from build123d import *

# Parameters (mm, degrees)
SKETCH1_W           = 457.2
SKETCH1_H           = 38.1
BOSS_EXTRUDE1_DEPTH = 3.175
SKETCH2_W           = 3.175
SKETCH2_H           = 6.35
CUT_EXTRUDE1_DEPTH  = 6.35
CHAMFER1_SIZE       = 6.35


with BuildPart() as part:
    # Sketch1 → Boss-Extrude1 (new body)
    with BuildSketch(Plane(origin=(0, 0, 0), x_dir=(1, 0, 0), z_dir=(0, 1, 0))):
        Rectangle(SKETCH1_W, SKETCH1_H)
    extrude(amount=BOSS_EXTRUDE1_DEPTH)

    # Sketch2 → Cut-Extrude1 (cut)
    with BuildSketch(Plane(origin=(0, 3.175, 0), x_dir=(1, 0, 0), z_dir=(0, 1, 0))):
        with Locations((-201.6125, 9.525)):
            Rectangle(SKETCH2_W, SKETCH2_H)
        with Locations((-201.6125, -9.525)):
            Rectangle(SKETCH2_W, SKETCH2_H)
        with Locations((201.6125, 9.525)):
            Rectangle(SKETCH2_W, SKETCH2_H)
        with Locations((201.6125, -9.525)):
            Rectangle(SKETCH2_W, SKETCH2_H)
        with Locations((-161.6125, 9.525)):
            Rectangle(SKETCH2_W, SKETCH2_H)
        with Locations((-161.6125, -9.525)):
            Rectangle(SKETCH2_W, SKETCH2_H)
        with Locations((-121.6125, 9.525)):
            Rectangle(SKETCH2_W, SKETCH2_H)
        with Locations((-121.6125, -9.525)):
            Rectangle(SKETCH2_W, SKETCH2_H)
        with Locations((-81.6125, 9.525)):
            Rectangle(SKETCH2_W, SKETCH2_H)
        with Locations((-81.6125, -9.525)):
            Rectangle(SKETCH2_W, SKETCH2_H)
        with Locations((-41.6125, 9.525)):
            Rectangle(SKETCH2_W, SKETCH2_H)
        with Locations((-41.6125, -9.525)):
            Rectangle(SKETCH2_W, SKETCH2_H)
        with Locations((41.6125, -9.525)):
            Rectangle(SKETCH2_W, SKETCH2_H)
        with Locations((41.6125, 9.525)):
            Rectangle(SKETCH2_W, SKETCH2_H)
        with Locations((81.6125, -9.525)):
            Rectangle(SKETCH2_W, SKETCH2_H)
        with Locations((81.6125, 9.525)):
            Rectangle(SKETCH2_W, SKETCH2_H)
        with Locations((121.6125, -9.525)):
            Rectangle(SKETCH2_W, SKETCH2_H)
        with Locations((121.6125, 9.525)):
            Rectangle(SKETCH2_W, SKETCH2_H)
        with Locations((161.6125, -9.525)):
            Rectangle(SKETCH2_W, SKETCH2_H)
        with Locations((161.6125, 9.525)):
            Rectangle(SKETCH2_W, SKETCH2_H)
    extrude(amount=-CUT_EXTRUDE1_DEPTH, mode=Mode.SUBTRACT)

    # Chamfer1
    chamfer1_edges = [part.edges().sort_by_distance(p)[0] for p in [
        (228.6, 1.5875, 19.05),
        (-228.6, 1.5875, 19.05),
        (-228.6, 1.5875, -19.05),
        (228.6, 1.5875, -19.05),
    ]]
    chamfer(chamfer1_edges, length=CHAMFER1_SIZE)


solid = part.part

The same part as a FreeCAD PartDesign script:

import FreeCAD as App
import Part
import Sketcher
Q = App.Units.Quantity


def edges_at(feature, points):
    """Names of the edges that pass closest to the given points."""
    edges = feature.Shape.Edges
    near = lambda p: min(range(len(edges)), key=lambda i: edges[i].distToShape(Part.Vertex(*p))[0])
    return sorted({f"Edge{near(p) + 1}" for p in points})

doc = App.newDocument("Part")
body = doc.addObject("PartDesign::Body", "Body")

sketch1 = doc.addObject("Sketcher::SketchObject", "Sketch")
body.addObject(sketch1)
sketch1.AttachmentSupport = (doc.XZ_Plane, [""])
sketch1.MapMode = "FlatFace"
sketch1.addGeometry(Part.LineSegment(App.Vector(-228.6, -19.05, 0), App.Vector(-228.6, 19.05, 0)), False)
sketch1.addGeometry(Part.LineSegment(App.Vector(-228.6, 19.05, 0), App.Vector(228.6, 19.05, 0)), False)
sketch1.addGeometry(Part.LineSegment(App.Vector(228.6, 19.05, 0), App.Vector(228.6, -19.05, 0)), False)
sketch1.addGeometry(Part.LineSegment(App.Vector(228.6, -19.05, 0), App.Vector(-228.6, -19.05, 0)), False)
sketch1.addConstraint(Sketcher.Constraint("Coincident", 0, 2, 1, 1))
sketch1.addConstraint(Sketcher.Constraint("Coincident", 1, 2, 2, 1))
sketch1.addConstraint(Sketcher.Constraint("Coincident", 2, 2, 3, 1))
sketch1.addConstraint(Sketcher.Constraint("Coincident", 3, 2, 0, 1))
sketch1.addConstraint(Sketcher.Constraint("Vertical", 0))
sketch1.addConstraint(Sketcher.Constraint("Horizontal", 1))
sketch1.addConstraint(Sketcher.Constraint("Vertical", 2))
sketch1.addConstraint(Sketcher.Constraint("Horizontal", 3))
sketch1.addConstraint(Sketcher.Constraint("Symmetric", 0, 2, 2, 2, -1, 1))
sketch1.addConstraint(Sketcher.Constraint("DistanceX", 1, 1, 1, 2, Q("18 in")))
sketch1.addConstraint(Sketcher.Constraint("DistanceY", 0, 1, 0, 2, Q("1.5 in")))
pad1 = doc.addObject("PartDesign::Pad", "Pad")
body.addObject(pad1)
pad1.Profile = sketch1
pad1.Length = Q("0.125 in")
pad1.Reversed = True

sketch2 = doc.addObject("Sketcher::SketchObject", "Sketch001")
body.addObject(sketch2)
sketch2.AttachmentSupport = (doc.XZ_Plane, [""])
sketch2.MapMode = "FlatFace"
sketch2.AttachmentOffset = App.Placement(App.Vector(0, 0, -0.125 * 25.4), App.Rotation())
sketch2.addGeometry(Part.LineSegment(App.Vector(-203.2, -12.7, 0), App.Vector(-203.2, -6.35, 0)), False)
sketch2.addGeometry(Part.LineSegment(App.Vector(-203.2, -6.35, 0), App.Vector(-200.025, -6.35, 0)), False)
sketch2.addGeometry(Part.LineSegment(App.Vector(-200.025, -6.35, 0), App.Vector(-200.025, -12.7, 0)), False)
sketch2.addGeometry(Part.LineSegment(App.Vector(-200.025, -12.7, 0), App.Vector(-203.2, -12.7, 0)), False)
sketch2.addGeometry(Part.LineSegment(App.Vector(-203.2, 6.35, 0), App.Vector(-203.2, 12.7, 0)), False)
sketch2.addGeometry(Part.LineSegment(App.Vector(-203.2, 12.7, 0), App.Vector(-200.025, 12.7, 0)), False)
sketch2.addGeometry(Part.LineSegment(App.Vector(-200.025, 12.7, 0), App.Vector(-200.025, 6.35, 0)), False)
sketch2.addGeometry(Part.LineSegment(App.Vector(-200.025, 6.35, 0), App.Vector(-203.2, 6.35, 0)), False)
sketch2.addGeometry(Part.LineSegment(App.Vector(200.025, -12.7, 0), App.Vector(200.025, -6.35, 0)), False)
sketch2.addGeometry(Part.LineSegment(App.Vector(200.025, -6.35, 0), App.Vector(203.2, -6.35, 0)), False)
sketch2.addGeometry(Part.LineSegment(App.Vector(203.2, -6.35, 0), App.Vector(203.2, -12.7, 0)), False)
sketch2.addGeometry(Part.LineSegment(App.Vector(203.2, -12.7, 0), App.Vector(200.025, -12.7, 0)), False)
sketch2.addGeometry(Part.LineSegment(App.Vector(200.025, 6.35, 0), App.Vector(200.025, 12.7, 0)), False)
sketch2.addGeometry(Part.LineSegment(App.Vector(200.025, 12.7, 0), App.Vector(203.2, 12.7, 0)), False)
sketch2.addGeometry(Part.LineSegment(App.Vector(203.2, 12.7, 0), App.Vector(203.2, 6.35, 0)), False)
sketch2.addGeometry(Part.LineSegment(App.Vector(203.2, 6.35, 0), App.Vector(200.025, 6.35, 0)), False)
sketch2.addGeometry(Part.LineSegment(App.Vector(-163.2, -12.7, 0), App.Vector(-163.2, -6.35, 0)), False)
sketch2.addGeometry(Part.LineSegment(App.Vector(-163.2, -6.35, 0), App.Vector(-160.025, -6.35, 0)), False)
sketch2.addGeometry(Part.LineSegment(App.Vector(-160.025, -6.35, 0), App.Vector(-160.025, -12.7, 0)), False)
sketch2.addGeometry(Part.LineSegment(App.Vector(-160.025, -12.7, 0), App.Vector(-163.2, -12.7, 0)), False)
sketch2.addGeometry(Part.LineSegment(App.Vector(-163.2, 6.35, 0), App.Vector(-163.2, 12.7, 0)), False)
sketch2.addGeometry(Part.LineSegment(App.Vector(-163.2, 12.7, 0), App.Vector(-160.025, 12.7, 0)), False)
sketch2.addGeometry(Part.LineSegment(App.Vector(-160.025, 12.7, 0), App.Vector(-160.025, 6.35, 0)), False)
sketch2.addGeometry(Part.LineSegment(App.Vector(-160.025, 6.35, 0), App.Vector(-163.2, 6.35, 0)), False)
sketch2.addGeometry(Part.LineSegment(App.Vector(-123.2, -12.7, 0), App.Vector(-123.2, -6.35, 0)), False)
sketch2.addGeometry(Part.LineSegment(App.Vector(-123.2, -6.35, 0), App.Vector(-120.025, -6.35, 0)), False)
sketch2.addGeometry(Part.LineSegment(App.Vector(-120.025, -6.35, 0), App.Vector(-120.025, -12.7, 0)), False)
sketch2.addGeometry(Part.LineSegment(App.Vector(-120.025, -12.7, 0), App.Vector(-123.2, -12.7, 0)), False)
sketch2.addGeometry(Part.LineSegment(App.Vector(-123.2, 6.35, 0), App.Vector(-123.2, 12.7, 0)), False)
sketch2.addGeometry(Part.LineSegment(App.Vector(-123.2, 12.7, 0), App.Vector(-120.025, 12.7, 0)), False)
sketch2.addGeometry(Part.LineSegment(App.Vector(-120.025, 12.7, 0), App.Vector(-120.025, 6.35, 0)), False)
sketch2.addGeometry(Part.LineSegment(App.Vector(-120.025, 6.35, 0), App.Vector(-123.2, 6.35, 0)), False)
sketch2.addGeometry(Part.LineSegment(App.Vector(-83.2, -12.7, 0), App.Vector(-83.2, -6.35, 0)), False)
sketch2.addGeometry(Part.LineSegment(App.Vector(-83.2, -6.35, 0), App.Vector(-80.025, -6.35, 0)), False)
sketch2.addGeometry(Part.LineSegment(App.Vector(-80.025, -6.35, 0), App.Vector(-80.025, -12.7, 0)), False)
sketch2.addGeometry(Part.LineSegment(App.Vector(-80.025, -12.7, 0), App.Vector(-83.2, -12.7, 0)), False)
sketch2.addGeometry(Part.LineSegment(App.Vector(-83.2, 6.35, 0), App.Vector(-83.2, 12.7, 0)), False)
sketch2.addGeometry(Part.LineSegment(App.Vector(-83.2, 12.7, 0), App.Vector(-80.025, 12.7, 0)), False)
sketch2.addGeometry(Part.LineSegment(App.Vector(-80.025, 12.7, 0), App.Vector(-80.025, 6.35, 0)), False)
sketch2.addGeometry(Part.LineSegment(App.Vector(-80.025, 6.35, 0), App.Vector(-83.2, 6.35, 0)), False)
sketch2.addGeometry(Part.LineSegment(App.Vector(-43.2, -12.7, 0), App.Vector(-43.2, -6.35, 0)), False)
sketch2.addGeometry(Part.LineSegment(App.Vector(-43.2, -6.35, 0), App.Vector(-40.025, -6.35, 0)), False)
sketch2.addGeometry(Part.LineSegment(App.Vector(-40.025, -6.35, 0), App.Vector(-40.025, -12.7, 0)), False)
sketch2.addGeometry(Part.LineSegment(App.Vector(-40.025, -12.7, 0), App.Vector(-43.2, -12.7, 0)), False)
sketch2.addGeometry(Part.LineSegment(App.Vector(-43.2, 6.35, 0), App.Vector(-43.2, 12.7, 0)), False)
sketch2.addGeometry(Part.LineSegment(App.Vector(-43.2, 12.7, 0), App.Vector(-40.025, 12.7, 0)), False)
sketch2.addGeometry(Part.LineSegment(App.Vector(-40.025, 12.7, 0), App.Vector(-40.025, 6.35, 0)), False)
sketch2.addGeometry(Part.LineSegment(App.Vector(-40.025, 6.35, 0), App.Vector(-43.2, 6.35, 0)), False)
sketch2.addGeometry(Part.LineSegment(App.Vector(40.025, 6.35, 0), App.Vector(40.025, 12.7, 0)), False)
sketch2.addGeometry(Part.LineSegment(App.Vector(40.025, 12.7, 0), App.Vector(43.2, 12.7, 0)), False)
sketch2.addGeometry(Part.LineSegment(App.Vector(43.2, 12.7, 0), App.Vector(43.2, 6.35, 0)), False)
sketch2.addGeometry(Part.LineSegment(App.Vector(43.2, 6.35, 0), App.Vector(40.025, 6.35, 0)), False)
sketch2.addGeometry(Part.LineSegment(App.Vector(40.025, -12.7, 0), App.Vector(40.025, -6.35, 0)), False)
sketch2.addGeometry(Part.LineSegment(App.Vector(40.025, -6.35, 0), App.Vector(43.2, -6.35, 0)), False)
sketch2.addGeometry(Part.LineSegment(App.Vector(43.2, -6.35, 0), App.Vector(43.2, -12.7, 0)), False)
sketch2.addGeometry(Part.LineSegment(App.Vector(43.2, -12.7, 0), App.Vector(40.025, -12.7, 0)), False)
sketch2.addGeometry(Part.LineSegment(App.Vector(80.025, 6.35, 0), App.Vector(80.025, 12.7, 0)), False)
sketch2.addGeometry(Part.LineSegment(App.Vector(80.025, 12.7, 0), App.Vector(83.2, 12.7, 0)), False)
sketch2.addGeometry(Part.LineSegment(App.Vector(83.2, 12.7, 0), App.Vector(83.2, 6.35, 0)), False)
sketch2.addGeometry(Part.LineSegment(App.Vector(83.2, 6.35, 0), App.Vector(80.025, 6.35, 0)), False)
sketch2.addGeometry(Part.LineSegment(App.Vector(80.025, -12.7, 0), App.Vector(80.025, -6.35, 0)), False)
sketch2.addGeometry(Part.LineSegment(App.Vector(80.025, -6.35, 0), App.Vector(83.2, -6.35, 0)), False)
sketch2.addGeometry(Part.LineSegment(App.Vector(83.2, -6.35, 0), App.Vector(83.2, -12.7, 0)), False)
sketch2.addGeometry(Part.LineSegment(App.Vector(83.2, -12.7, 0), App.Vector(80.025, -12.7, 0)), False)
sketch2.addGeometry(Part.LineSegment(App.Vector(120.025, 6.35, 0), App.Vector(120.025, 12.7, 0)), False)
sketch2.addGeometry(Part.LineSegment(App.Vector(120.025, 12.7, 0), App.Vector(123.2, 12.7, 0)), False)
sketch2.addGeometry(Part.LineSegment(App.Vector(123.2, 12.7, 0), App.Vector(123.2, 6.35, 0)), False)
sketch2.addGeometry(Part.LineSegment(App.Vector(123.2, 6.35, 0), App.Vector(120.025, 6.35, 0)), False)
sketch2.addGeometry(Part.LineSegment(App.Vector(120.025, -12.7, 0), App.Vector(120.025, -6.35, 0)), False)
sketch2.addGeometry(Part.LineSegment(App.Vector(120.025, -6.35, 0), App.Vector(123.2, -6.35, 0)), False)
sketch2.addGeometry(Part.LineSegment(App.Vector(123.2, -6.35, 0), App.Vector(123.2, -12.7, 0)), False)
sketch2.addGeometry(Part.LineSegment(App.Vector(123.2, -12.7, 0), App.Vector(120.025, -12.7, 0)), False)
sketch2.addGeometry(Part.LineSegment(App.Vector(160.025, 6.35, 0), App.Vector(160.025, 12.7, 0)), False)
sketch2.addGeometry(Part.LineSegment(App.Vector(160.025, 12.7, 0), App.Vector(163.2, 12.7, 0)), False)
sketch2.addGeometry(Part.LineSegment(App.Vector(163.2, 12.7, 0), App.Vector(163.2, 6.35, 0)), False)
sketch2.addGeometry(Part.LineSegment(App.Vector(163.2, 6.35, 0), App.Vector(160.025, 6.35, 0)), False)
sketch2.addGeometry(Part.LineSegment(App.Vector(160.025, -12.7, 0), App.Vector(160.025, -6.35, 0)), False)
sketch2.addGeometry(Part.LineSegment(App.Vector(160.025, -6.35, 0), App.Vector(163.2, -6.35, 0)), False)
sketch2.addGeometry(Part.LineSegment(App.Vector(163.2, -6.35, 0), App.Vector(163.2, -12.7, 0)), False)
sketch2.addGeometry(Part.LineSegment(App.Vector(163.2, -12.7, 0), App.Vector(160.025, -12.7, 0)), False)
sketch2.addConstraint(Sketcher.Constraint("Coincident", 0, 2, 1, 1))
sketch2.addConstraint(Sketcher.Constraint("Coincident", 1, 2, 2, 1))
sketch2.addConstraint(Sketcher.Constraint("Coincident", 2, 2, 3, 1))
sketch2.addConstraint(Sketcher.Constraint("Coincident", 3, 2, 0, 1))
sketch2.addConstraint(Sketcher.Constraint("Coincident", 4, 2, 5, 1))
sketch2.addConstraint(Sketcher.Constraint("Coincident", 5, 2, 6, 1))
sketch2.addConstraint(Sketcher.Constraint("Coincident", 6, 2, 7, 1))
sketch2.addConstraint(Sketcher.Constraint("Coincident", 7, 2, 4, 1))
sketch2.addConstraint(Sketcher.Constraint("Coincident", 8, 2, 9, 1))
sketch2.addConstraint(Sketcher.Constraint("Coincident", 9, 2, 10, 1))
sketch2.addConstraint(Sketcher.Constraint("Coincident", 10, 2, 11, 1))
sketch2.addConstraint(Sketcher.Constraint("Coincident", 11, 2, 8, 1))
sketch2.addConstraint(Sketcher.Constraint("Coincident", 12, 2, 13, 1))
sketch2.addConstraint(Sketcher.Constraint("Coincident", 13, 2, 14, 1))
sketch2.addConstraint(Sketcher.Constraint("Coincident", 14, 2, 15, 1))
sketch2.addConstraint(Sketcher.Constraint("Coincident", 15, 2, 12, 1))
sketch2.addConstraint(Sketcher.Constraint("Coincident", 16, 2, 17, 1))
sketch2.addConstraint(Sketcher.Constraint("Coincident", 17, 2, 18, 1))
sketch2.addConstraint(Sketcher.Constraint("Coincident", 18, 2, 19, 1))
sketch2.addConstraint(Sketcher.Constraint("Coincident", 19, 2, 16, 1))
sketch2.addConstraint(Sketcher.Constraint("Coincident", 20, 2, 21, 1))
sketch2.addConstraint(Sketcher.Constraint("Coincident", 21, 2, 22, 1))
sketch2.addConstraint(Sketcher.Constraint("Coincident", 22, 2, 23, 1))
sketch2.addConstraint(Sketcher.Constraint("Coincident", 23, 2, 20, 1))
sketch2.addConstraint(Sketcher.Constraint("Coincident", 24, 2, 25, 1))
sketch2.addConstraint(Sketcher.Constraint("Coincident", 25, 2, 26, 1))
sketch2.addConstraint(Sketcher.Constraint("Coincident", 26, 2, 27, 1))
sketch2.addConstraint(Sketcher.Constraint("Coincident", 27, 2, 24, 1))
sketch2.addConstraint(Sketcher.Constraint("Coincident", 28, 2, 29, 1))
sketch2.addConstraint(Sketcher.Constraint("Coincident", 29, 2, 30, 1))
sketch2.addConstraint(Sketcher.Constraint("Coincident", 30, 2, 31, 1))
sketch2.addConstraint(Sketcher.Constraint("Coincident", 31, 2, 28, 1))
sketch2.addConstraint(Sketcher.Constraint("Coincident", 32, 2, 33, 1))
sketch2.addConstraint(Sketcher.Constraint("Coincident", 33, 2, 34, 1))
sketch2.addConstraint(Sketcher.Constraint("Coincident", 34, 2, 35, 1))
sketch2.addConstraint(Sketcher.Constraint("Coincident", 35, 2, 32, 1))
sketch2.addConstraint(Sketcher.Constraint("Coincident", 36, 2, 37, 1))
sketch2.addConstraint(Sketcher.Constraint("Coincident", 37, 2, 38, 1))
sketch2.addConstraint(Sketcher.Constraint("Coincident", 38, 2, 39, 1))
sketch2.addConstraint(Sketcher.Constraint("Coincident", 39, 2, 36, 1))
sketch2.addConstraint(Sketcher.Constraint("Coincident", 40, 2, 41, 1))
sketch2.addConstraint(Sketcher.Constraint("Coincident", 41, 2, 42, 1))
sketch2.addConstraint(Sketcher.Constraint("Coincident", 42, 2, 43, 1))
sketch2.addConstraint(Sketcher.Constraint("Coincident", 43, 2, 40, 1))
sketch2.addConstraint(Sketcher.Constraint("Coincident", 44, 2, 45, 1))
sketch2.addConstraint(Sketcher.Constraint("Coincident", 45, 2, 46, 1))
sketch2.addConstraint(Sketcher.Constraint("Coincident", 46, 2, 47, 1))
sketch2.addConstraint(Sketcher.Constraint("Coincident", 47, 2, 44, 1))
sketch2.addConstraint(Sketcher.Constraint("Coincident", 48, 2, 49, 1))
sketch2.addConstraint(Sketcher.Constraint("Coincident", 49, 2, 50, 1))
sketch2.addConstraint(Sketcher.Constraint("Coincident", 50, 2, 51, 1))
sketch2.addConstraint(Sketcher.Constraint("Coincident", 51, 2, 48, 1))
sketch2.addConstraint(Sketcher.Constraint("Coincident", 52, 2, 53, 1))
sketch2.addConstraint(Sketcher.Constraint("Coincident", 53, 2, 54, 1))
sketch2.addConstraint(Sketcher.Constraint("Coincident", 54, 2, 55, 1))
sketch2.addConstraint(Sketcher.Constraint("Coincident", 55, 2, 52, 1))
sketch2.addConstraint(Sketcher.Constraint("Coincident", 56, 2, 57, 1))
sketch2.addConstraint(Sketcher.Constraint("Coincident", 57, 2, 58, 1))
sketch2.addConstraint(Sketcher.Constraint("Coincident", 58, 2, 59, 1))
sketch2.addConstraint(Sketcher.Constraint("Coincident", 59, 2, 56, 1))
sketch2.addConstraint(Sketcher.Constraint("Coincident", 60, 2, 61, 1))
sketch2.addConstraint(Sketcher.Constraint("Coincident", 61, 2, 62, 1))
sketch2.addConstraint(Sketcher.Constraint("Coincident", 62, 2, 63, 1))
sketch2.addConstraint(Sketcher.Constraint("Coincident", 63, 2, 60, 1))
sketch2.addConstraint(Sketcher.Constraint("Coincident", 64, 2, 65, 1))
sketch2.addConstraint(Sketcher.Constraint("Coincident", 65, 2, 66, 1))
sketch2.addConstraint(Sketcher.Constraint("Coincident", 66, 2, 67, 1))
sketch2.addConstraint(Sketcher.Constraint("Coincident", 67, 2, 64, 1))
sketch2.addConstraint(Sketcher.Constraint("Coincident", 68, 2, 69, 1))
sketch2.addConstraint(Sketcher.Constraint("Coincident", 69, 2, 70, 1))
sketch2.addConstraint(Sketcher.Constraint("Coincident", 70, 2, 71, 1))
sketch2.addConstraint(Sketcher.Constraint("Coincident", 71, 2, 68, 1))
sketch2.addConstraint(Sketcher.Constraint("Coincident", 72, 2, 73, 1))
sketch2.addConstraint(Sketcher.Constraint("Coincident", 73, 2, 74, 1))
sketch2.addConstraint(Sketcher.Constraint("Coincident", 74, 2, 75, 1))
sketch2.addConstraint(Sketcher.Constraint("Coincident", 75, 2, 72, 1))
sketch2.addConstraint(Sketcher.Constraint("Coincident", 76, 2, 77, 1))
sketch2.addConstraint(Sketcher.Constraint("Coincident", 77, 2, 78, 1))
sketch2.addConstraint(Sketcher.Constraint("Coincident", 78, 2, 79, 1))
sketch2.addConstraint(Sketcher.Constraint("Coincident", 79, 2, 76, 1))
sketch2.addConstraint(Sketcher.Constraint("Vertical", 0))
sketch2.addConstraint(Sketcher.Constraint("Horizontal", 1))
sketch2.addConstraint(Sketcher.Constraint("Vertical", 2))
sketch2.addConstraint(Sketcher.Constraint("Horizontal", 3))
sketch2.addConstraint(Sketcher.Constraint("Vertical", 4))
sketch2.addConstraint(Sketcher.Constraint("Horizontal", 5))
sketch2.addConstraint(Sketcher.Constraint("Vertical", 6))
sketch2.addConstraint(Sketcher.Constraint("Horizontal", 7))
sketch2.addConstraint(Sketcher.Constraint("Vertical", 8))
sketch2.addConstraint(Sketcher.Constraint("Horizontal", 9))
sketch2.addConstraint(Sketcher.Constraint("Vertical", 10))
sketch2.addConstraint(Sketcher.Constraint("Horizontal", 11))
sketch2.addConstraint(Sketcher.Constraint("Vertical", 12))
sketch2.addConstraint(Sketcher.Constraint("Horizontal", 13))
sketch2.addConstraint(Sketcher.Constraint("Vertical", 14))
sketch2.addConstraint(Sketcher.Constraint("Horizontal", 15))
sketch2.addConstraint(Sketcher.Constraint("Vertical", 16))
sketch2.addConstraint(Sketcher.Constraint("Horizontal", 17))
sketch2.addConstraint(Sketcher.Constraint("Vertical", 18))
sketch2.addConstraint(Sketcher.Constraint("Horizontal", 19))
sketch2.addConstraint(Sketcher.Constraint("Vertical", 20))
sketch2.addConstraint(Sketcher.Constraint("Horizontal", 21))
sketch2.addConstraint(Sketcher.Constraint("Vertical", 22))
sketch2.addConstraint(Sketcher.Constraint("Horizontal", 23))
sketch2.addConstraint(Sketcher.Constraint("Vertical", 24))
sketch2.addConstraint(Sketcher.Constraint("Horizontal", 25))
sketch2.addConstraint(Sketcher.Constraint("Vertical", 26))
sketch2.addConstraint(Sketcher.Constraint("Horizontal", 27))
sketch2.addConstraint(Sketcher.Constraint("Vertical", 28))
sketch2.addConstraint(Sketcher.Constraint("Horizontal", 29))
sketch2.addConstraint(Sketcher.Constraint("Vertical", 30))
sketch2.addConstraint(Sketcher.Constraint("Horizontal", 31))
sketch2.addConstraint(Sketcher.Constraint("Vertical", 32))
sketch2.addConstraint(Sketcher.Constraint("Horizontal", 33))
sketch2.addConstraint(Sketcher.Constraint("Vertical", 34))
sketch2.addConstraint(Sketcher.Constraint("Horizontal", 35))
sketch2.addConstraint(Sketcher.Constraint("Vertical", 36))
sketch2.addConstraint(Sketcher.Constraint("Horizontal", 37))
sketch2.addConstraint(Sketcher.Constraint("Vertical", 38))
sketch2.addConstraint(Sketcher.Constraint("Horizontal", 39))
sketch2.addConstraint(Sketcher.Constraint("Vertical", 40))
sketch2.addConstraint(Sketcher.Constraint("Horizontal", 41))
sketch2.addConstraint(Sketcher.Constraint("Vertical", 42))
sketch2.addConstraint(Sketcher.Constraint("Horizontal", 43))
sketch2.addConstraint(Sketcher.Constraint("Vertical", 44))
sketch2.addConstraint(Sketcher.Constraint("Horizontal", 45))
sketch2.addConstraint(Sketcher.Constraint("Vertical", 46))
sketch2.addConstraint(Sketcher.Constraint("Horizontal", 47))
sketch2.addConstraint(Sketcher.Constraint("Vertical", 48))
sketch2.addConstraint(Sketcher.Constraint("Horizontal", 49))
sketch2.addConstraint(Sketcher.Constraint("Vertical", 50))
sketch2.addConstraint(Sketcher.Constraint("Horizontal", 51))
sketch2.addConstraint(Sketcher.Constraint("Vertical", 52))
sketch2.addConstraint(Sketcher.Constraint("Horizontal", 53))
sketch2.addConstraint(Sketcher.Constraint("Vertical", 54))
sketch2.addConstraint(Sketcher.Constraint("Horizontal", 55))
sketch2.addConstraint(Sketcher.Constraint("Vertical", 56))
sketch2.addConstraint(Sketcher.Constraint("Horizontal", 57))
sketch2.addConstraint(Sketcher.Constraint("Vertical", 58))
sketch2.addConstraint(Sketcher.Constraint("Horizontal", 59))
sketch2.addConstraint(Sketcher.Constraint("Vertical", 60))
sketch2.addConstraint(Sketcher.Constraint("Horizontal", 61))
sketch2.addConstraint(Sketcher.Constraint("Vertical", 62))
sketch2.addConstraint(Sketcher.Constraint("Horizontal", 63))
sketch2.addConstraint(Sketcher.Constraint("Vertical", 64))
sketch2.addConstraint(Sketcher.Constraint("Horizontal", 65))
sketch2.addConstraint(Sketcher.Constraint("Vertical", 66))
sketch2.addConstraint(Sketcher.Constraint("Horizontal", 67))
sketch2.addConstraint(Sketcher.Constraint("Vertical", 68))
sketch2.addConstraint(Sketcher.Constraint("Horizontal", 69))
sketch2.addConstraint(Sketcher.Constraint("Vertical", 70))
sketch2.addConstraint(Sketcher.Constraint("Horizontal", 71))
sketch2.addConstraint(Sketcher.Constraint("Vertical", 72))
sketch2.addConstraint(Sketcher.Constraint("Horizontal", 73))
sketch2.addConstraint(Sketcher.Constraint("Vertical", 74))
sketch2.addConstraint(Sketcher.Constraint("Horizontal", 75))
sketch2.addConstraint(Sketcher.Constraint("Vertical", 76))
sketch2.addConstraint(Sketcher.Constraint("Horizontal", 77))
sketch2.addConstraint(Sketcher.Constraint("Vertical", 78))
sketch2.addConstraint(Sketcher.Constraint("Horizontal", 79))
sketch2.addConstraint(Sketcher.Constraint("Symmetric", 6, 2, 8, 2, -1, 1))
sketch2.addConstraint(Sketcher.Constraint("Symmetric", 4, 2, 10, 2, -1, 1))
sketch2.addConstraint(Sketcher.Constraint("Symmetric", 2, 2, 12, 2, -1, 1))
sketch2.addConstraint(Sketcher.Constraint("Symmetric", 0, 2, 14, 2, -1, 1))
sketch2.addConstraint(Sketcher.Constraint("Symmetric", 42, 2, 48, 2, -1, 1))
sketch2.addConstraint(Sketcher.Constraint("Symmetric", 40, 2, 50, 2, -1, 1))
sketch2.addConstraint(Sketcher.Constraint("Symmetric", 46, 2, 52, 2, -1, 1))
sketch2.addConstraint(Sketcher.Constraint("Symmetric", 44, 2, 54, 2, -1, 1))
sketch2.addConstraint(Sketcher.Constraint("Symmetric", 34, 2, 56, 2, -1, 1))
sketch2.addConstraint(Sketcher.Constraint("Symmetric", 32, 2, 58, 2, -1, 1))
sketch2.addConstraint(Sketcher.Constraint("Symmetric", 38, 2, 60, 2, -1, 1))
sketch2.addConstraint(Sketcher.Constraint("Symmetric", 36, 2, 62, 2, -1, 1))
sketch2.addConstraint(Sketcher.Constraint("Symmetric", 26, 2, 64, 2, -1, 1))
sketch2.addConstraint(Sketcher.Constraint("Symmetric", 24, 2, 66, 2, -1, 1))
sketch2.addConstraint(Sketcher.Constraint("Symmetric", 30, 2, 68, 2, -1, 1))
sketch2.addConstraint(Sketcher.Constraint("Symmetric", 28, 2, 70, 2, -1, 1))
sketch2.addConstraint(Sketcher.Constraint("Symmetric", 18, 2, 72, 2, -1, 1))
sketch2.addConstraint(Sketcher.Constraint("Symmetric", 16, 2, 74, 2, -1, 1))
sketch2.addConstraint(Sketcher.Constraint("Symmetric", 22, 2, 76, 2, -1, 1))
sketch2.addConstraint(Sketcher.Constraint("Symmetric", 20, 2, 78, 2, -1, 1))
sketch2.addConstraint(Sketcher.Constraint("Symmetric", 1, 2, 8, 2, -2))
sketch2.addConstraint(Sketcher.Constraint("Symmetric", 3, 2, 10, 2, -2))
sketch2.addConstraint(Sketcher.Constraint("Symmetric", 45, 2, 48, 2, -2))
sketch2.addConstraint(Sketcher.Constraint("Symmetric", 47, 2, 50, 2, -2))
sketch2.addConstraint(Sketcher.Constraint("Symmetric", 37, 2, 56, 2, -2))
sketch2.addConstraint(Sketcher.Constraint("Symmetric", 39, 2, 58, 2, -2))
sketch2.addConstraint(Sketcher.Constraint("Symmetric", 29, 2, 64, 2, -2))
sketch2.addConstraint(Sketcher.Constraint("Symmetric", 31, 2, 66, 2, -2))
sketch2.addConstraint(Sketcher.Constraint("Symmetric", 21, 2, 72, 2, -2))
sketch2.addConstraint(Sketcher.Constraint("Symmetric", 23, 2, 74, 2, -2))
sketch2.addConstraint(Sketcher.Constraint("Horizontal", 9, 2, 16, 2))
sketch2.addConstraint(Sketcher.Constraint("Horizontal", 11, 2, 18, 2))
sketch2.addConstraint(Sketcher.Constraint("Horizontal", 17, 2, 24, 2))
sketch2.addConstraint(Sketcher.Constraint("Horizontal", 19, 2, 26, 2))
sketch2.addConstraint(Sketcher.Constraint("Horizontal", 25, 2, 32, 2))
sketch2.addConstraint(Sketcher.Constraint("Horizontal", 27, 2, 34, 2))
sketch2.addConstraint(Sketcher.Constraint("Horizontal", 33, 2, 40, 2))
sketch2.addConstraint(Sketcher.Constraint("Horizontal", 35, 2, 42, 2))
sketch2.addConstraint(Sketcher.Constraint("Equal", 15, 17))
sketch2.addConstraint(Sketcher.Constraint("Equal", 23, 25))
sketch2.addConstraint(Sketcher.Constraint("Equal", 31, 33))
sketch2.addConstraint(Sketcher.Constraint("Equal", 39, 41))
sketch2.addConstraint(Sketcher.Constraint("DistanceX", 0, 2, -1, 1, Q("8 in")))
sketch2.addConstraint(Sketcher.Constraint("DistanceY", 0, 1, 0, 2, Q("0.25 in")))
sketch2.addConstraint(Sketcher.Constraint("DistanceY", 2, 2, -1, 1, Q("0.5 in")))
sketch2.addConstraint(Sketcher.Constraint("DistanceX", 1, 1, 1, 2, Q("0.125 in")))
sketch2.addConstraint(Sketcher.Constraint("DistanceX", 16, 2, -1, 1, Q("163.2 mm")))
sketch2.addConstraint(Sketcher.Constraint("DistanceX", 24, 2, -1, 1, Q("123.2 mm")))
sketch2.addConstraint(Sketcher.Constraint("DistanceX", 32, 2, -1, 1, Q("83.2 mm")))
sketch2.addConstraint(Sketcher.Constraint("DistanceX", 40, 2, -1, 1, Q("43.2 mm")))
pocket1 = doc.addObject("PartDesign::Pocket", "Pocket")
body.addObject(pocket1)
pocket1.Profile = sketch2
pocket1.Length = Q("0.25 in")
pocket1.Reversed = True
doc.recompute()

chamfer = doc.addObject("PartDesign::Chamfer", "Chamfer")
body.addObject(chamfer)
chamfer.Base = (pocket1, edges_at(pocket1, [
    (228.6, 1.587, 19.05),
    (-228.6, 1.587, 19.05),
    (-228.6, 1.587, -19.05),
    (228.6, 1.587, -19.05),
]))
chamfer.Size = Q("0.25 in")

doc.recompute()
